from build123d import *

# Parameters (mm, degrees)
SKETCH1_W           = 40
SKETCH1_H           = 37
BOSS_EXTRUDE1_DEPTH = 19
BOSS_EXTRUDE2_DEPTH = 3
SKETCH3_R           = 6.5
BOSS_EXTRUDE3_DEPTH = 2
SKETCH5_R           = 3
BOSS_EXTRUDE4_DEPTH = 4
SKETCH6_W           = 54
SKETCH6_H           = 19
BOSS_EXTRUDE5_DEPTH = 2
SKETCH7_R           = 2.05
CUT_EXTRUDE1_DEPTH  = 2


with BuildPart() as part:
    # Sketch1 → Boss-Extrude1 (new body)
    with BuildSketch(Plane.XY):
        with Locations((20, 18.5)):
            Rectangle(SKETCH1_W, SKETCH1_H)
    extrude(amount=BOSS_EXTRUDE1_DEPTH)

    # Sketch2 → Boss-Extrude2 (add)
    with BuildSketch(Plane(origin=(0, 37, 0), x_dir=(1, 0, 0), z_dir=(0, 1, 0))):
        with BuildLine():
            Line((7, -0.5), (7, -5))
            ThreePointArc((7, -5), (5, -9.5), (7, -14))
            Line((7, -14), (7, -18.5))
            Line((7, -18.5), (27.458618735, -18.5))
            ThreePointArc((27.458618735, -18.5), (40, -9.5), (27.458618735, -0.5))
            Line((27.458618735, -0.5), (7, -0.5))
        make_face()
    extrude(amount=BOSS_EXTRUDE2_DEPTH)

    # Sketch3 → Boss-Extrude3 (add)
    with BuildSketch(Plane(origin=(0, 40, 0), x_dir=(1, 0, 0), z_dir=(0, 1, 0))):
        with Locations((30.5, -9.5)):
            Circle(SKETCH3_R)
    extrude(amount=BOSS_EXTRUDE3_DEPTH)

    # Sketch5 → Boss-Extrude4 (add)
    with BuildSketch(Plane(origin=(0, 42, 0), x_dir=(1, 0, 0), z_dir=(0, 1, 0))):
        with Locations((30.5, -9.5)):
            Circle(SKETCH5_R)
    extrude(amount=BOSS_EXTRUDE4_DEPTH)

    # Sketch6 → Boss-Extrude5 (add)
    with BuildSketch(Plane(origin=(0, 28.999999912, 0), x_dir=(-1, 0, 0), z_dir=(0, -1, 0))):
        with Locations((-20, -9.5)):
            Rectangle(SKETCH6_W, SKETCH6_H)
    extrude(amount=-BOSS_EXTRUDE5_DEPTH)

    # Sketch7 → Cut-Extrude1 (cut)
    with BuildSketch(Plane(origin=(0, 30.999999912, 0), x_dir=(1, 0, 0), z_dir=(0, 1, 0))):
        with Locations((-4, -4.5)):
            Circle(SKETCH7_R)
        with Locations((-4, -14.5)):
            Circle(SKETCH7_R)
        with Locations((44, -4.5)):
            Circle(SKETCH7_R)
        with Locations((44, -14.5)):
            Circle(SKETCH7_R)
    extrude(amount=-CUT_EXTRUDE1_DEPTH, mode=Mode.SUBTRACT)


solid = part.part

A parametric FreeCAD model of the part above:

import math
import FreeCAD as App
import Part
import Sketcher


def add_polygon(sketch, points):
    """Adds a closed chain of lines whose ends are joined by coincident constraints."""
    first, n = sketch.GeometryCount, len(points)
    for a, b in zip(points, points[1:] + points[:1]):
        sketch.addGeometry(Part.LineSegment(App.Vector(*a, 0), App.Vector(*b, 0)), False)
    for i in range(n):
        sketch.addConstraint(Sketcher.Constraint("Coincident", first + i, 2, first + (i + 1) % n, 1))

doc = App.newDocument("Part")
params = doc.addObject("Spreadsheet::Sheet", "Params")
for row, (alias, value) in enumerate([
    ("sketch1_width", "40 mm"),
    ("sketch1_height", "37 mm"),
    ("pad1_length", "19 mm"),
    ("sketch2_radius", "9.5 mm"),
    ("sketch2_height", "4.5 mm"),
    ("pad2_length", "3 mm"),
    ("sketch3_diameter", "13 mm"),
    ("pad3_length", "2 mm"),
    ("sketch4_diameter", "6 mm"),
    ("pad4_length", "4 mm"),
    ("sketch5_width", "54 mm"),
    ("sketch5_height", "19 mm"),
    ("pad5_length", "2 mm"),
    ("sketch6_diameter", "4.1 mm"),
    ("pocket1_length", "2 mm"),
], start=1):
    params.set(f"A{row}", alias)
    params.set(f"B{row}", "=" + value)
    params.setAlias(f"B{row}", alias)

body = doc.addObject("PartDesign::Body", "Body")

sketch1 = body.newObject("Sketcher::SketchObject", "Sketch")
sketch1.AttachmentSupport = (doc.getObject("XY_Plane"), [""])
sketch1.MapMode = "FlatFace"
add_polygon(sketch1, [(0, 37), (0, 0), (40, 0), (40, 37)])
sketch1.addConstraint(Sketcher.Constraint("Vertical", 0))
sketch1.addConstraint(Sketcher.Constraint("Horizontal", 1))
sketch1.addConstraint(Sketcher.Constraint("Vertical", 2))
sketch1.addConstraint(Sketcher.Constraint("Horizontal", 3))
sketch1.addConstraint(Sketcher.Constraint("Coincident", 0, 2, -1, 1))
sketch1.addConstraint(Sketcher.Constraint("DistanceX", 1, 1, 1, 2, 40.0))
sketch1.addConstraint(Sketcher.Constraint("DistanceY", 0, 2, 0, 1, 37.0))
sketch1.setExpression("Constraints[9]", "Params.sketch1_width")
sketch1.setExpression("Constraints[10]", "Params.sketch1_height")
pad1 = body.newObject("PartDesign::Pad", "Pad")
pad1.Profile = sketch1
pad1.setExpression("Length", "Params.pad1_length")

sketch2 = body.newObject("Sketcher::SketchObject", "Sketch001")
sketch2.AttachmentSupport = (doc.getObject("XZ_Plane"), [""])
sketch2.MapMode = "FlatFace"
sketch2.AttachmentOffset = App.Placement(App.Vector(0, 0, -37), App.Rotation())
sketch2.addGeometry(Part.LineSegment(App.Vector(7, 0.5, 0), App.Vector(7, 5, 0)), False)
sketch2.addGeometry(Part.ArcOfCircle(Part.Circle(App.Vector(11.1, 9.5, 0), App.Vector(0, 0, 1), 6.1), math.radians(132), math.radians(228)), False)
sketch2.addGeometry(Part.LineSegment(App.Vector(7, 14, 0), App.Vector(7, 18.5, 0)), False)
sketch2.addGeometry(Part.LineSegment(App.Vector(7, 18.5, 0), App.Vector(27.5, 18.5, 0)), False)
sketch2.addGeometry(Part.ArcOfCircle(Part.Circle(App.Vector(30.5, 9.5, 0), App.Vector(0, 0, 1), 9.5), math.radians(-109), math.radians(109)), False)
sketch2.addGeometry(Part.LineSegment(App.Vector(27.5, 0.5, 0), App.Vector(7, 0.5, 0)), False)
sketch2.addConstraint(Sketcher.Constraint("Coincident", 0, 2, 1, 2))
sketch2.addConstraint(Sketcher.Constraint("Coincident", 1, 1, 2, 1))
sketch2.addConstraint(Sketcher.Constraint("Coincident", 2, 2, 3, 1))
sketch2.addConstraint(Sketcher.Constraint("Coincident", 3, 2, 4, 2))
sketch2.addConstraint(Sketcher.Constraint("Coincident", 4, 1, 5, 1))
sketch2.addConstraint(Sketcher.Constraint("Coincident", 5, 2, 0, 1))
sketch2.addConstraint(Sketcher.Constraint("Vertical", 0))
sketch2.addConstraint(Sketcher.Constraint("Vertical", 2))
sketch2.addConstraint(Sketcher.Constraint("Horizontal", 3))
sketch2.addConstraint(Sketcher.Constraint("Horizontal", 5))
sketch2.addConstraint(Sketcher.Constraint("Horizontal", 1, 3, 4, 3))
sketch2.addConstraint(Sketcher.Constraint("Vertical", 0, 2, 1, 1))
sketch2.addConstraint(Sketcher.Constraint("Vertical", 3, 2, 4, 1))
sketch2.addConstraint(Sketcher.Constraint("Radius", 4, 9.5))
sketch2.addConstraint(Sketcher.Constraint("DistanceY", 0, 1, 0, 2, 4.5))
sketch2.addConstraint(Sketcher.Constraint("DistanceX", -1, 1, 0, 2, 7.0))
sketch2.addConstraint(Sketcher.Constraint("DistanceY", -1, 1, 0, 2, 5.0))
sketch2.addConstraint(Sketcher.Constraint("DistanceY", -1, 1, 1, 1, 14.0))
sketch2.addConstraint(Sketcher.Constraint("DistanceX", -1, 1, 4, 3, 30.5))
sketch2.addConstraint(Sketcher.Constraint("Radius", 1, 6.0625))
sketch2.setExpression("Constraints[13]", "Params.sketch2_radius")
sketch2.setExpression("Constraints[14]", "Params.sketch2_height")
pad2 = body.newObject("PartDesign::Pad", "Pad001")
pad2.Profile = sketch2
pad2.setExpression("Length", "Params.pad2_length")
pad2.Reversed = True

sketch3 = body.newObject("Sketcher::SketchObject", "Sketch002")
sketch3.AttachmentSupport = (doc.getObject("XZ_Plane"), [""])
sketch3.MapMode = "FlatFace"
sketch3.AttachmentOffset = App.Placement(App.Vector(0, 0, -40), App.Rotation())
sketch3.addGeometry(Part.Circle(App.Vector(30, 10, 0), App.Vector(0, 0, 1), 6), False)
sketch3.addConstraint(Sketcher.Constraint("Diameter", 0, 13.0))
sketch3.addConstraint(Sketcher.Constraint("DistanceX", -1, 1, 0, 3, 30.5))
sketch3.addConstraint(Sketcher.Constraint("DistanceY", -1, 1, 0, 3, 9.5))
sketch3.setExpression("Constraints[0]", "Params.sketch3_diameter")
pad3 = body.newObject("PartDesign::Pad", "Pad002")
pad3.Profile = sketch3
pad3.setExpression("Length", "Params.pad3_length")
pad3.Reversed = True

sketch4 = body.newObject("Sketcher::SketchObject", "Sketch003")
sketch4.AttachmentSupport = (doc.getObject("XZ_Plane"), [""])
sketch4.MapMode = "FlatFace"
sketch4.AttachmentOffset = App.Placement(App.Vector(0, 0, -42), App.Rotation())
sketch4.addGeometry(Part.Circle(App.Vector(30.5, 9.5, 0), App.Vector(0, 0, 1), 3), False)
sketch4.addConstraint(Sketcher.Constraint("Diameter", 0, 6.0))
sketch4.addConstraint(Sketcher.Constraint("DistanceX", -1, 1, 0, 3, 30.5))
sketch4.addConstraint(Sketcher.Constraint("DistanceY", -1, 1, 0, 3, 9.5))
sketch4.setExpression("Constraints[0]", "Params.sketch4_diameter")
pad4 = body.newObject("PartDesign::Pad", "Pad003")
pad4.Profile = sketch4
pad4.setExpression("Length", "Params.pad4_length")
pad4.Reversed = True

sketch5 = body.newObject("Sketcher::SketchObject", "Sketch004")
sketch5.AttachmentSupport = (doc.getObject("XZ_Plane"), [""])
sketch5.MapMode = "FlatFace"
sketch5.AttachmentOffset = App.Placement(App.Vector(0, 0, -29), App.Rotation())
add_polygon(sketch5, [(47, 0), (47, 19), (-7, 19), (-7, 0)])
sketch5.addConstraint(Sketcher.Constraint("Vertical", 0))
sketch5.addConstraint(Sketcher.Constraint("Horizontal", 1))
sketch5.addConstraint(Sketcher.Constraint("Vertical", 2))
sketch5.addConstraint(Sketcher.Constraint("Horizontal", 3))
sketch5.addConstraint(Sketcher.Constraint("PointOnObject", 2, 2, -1))
sketch5.addConstraint(Sketcher.Constraint("DistanceX", 1, 2, 1, 1, 54.0))
sketch5.addConstraint(Sketcher.Constraint("DistanceY", 0, 1, 0, 2, 19.0))
sketch5.addConstraint(Sketcher.Constraint("DistanceX", -1, 1, 0, 2, 47.0))
sketch5.setExpression("Constraints[9]", "Params.sketch5_width")
sketch5.setExpression("Constraints[10]", "Params.sketch5_height")
pad5 = body.newObject("PartDesign::Pad", "Pad004")
pad5.Profile = sketch5
pad5.setExpression("Length", "Params.pad5_length")
pad5.Reversed = True

sketch6 = body.newObject("Sketcher::SketchObject", "Sketch005")
sketch6.AttachmentSupport = (doc.getObject("XZ_Plane"), [""])
sketch6.MapMode = "FlatFace"
sketch6.AttachmentOffset = App.Placement(App.Vector(0, 0, -31), App.Rotation())
sketch6.addGeometry(Part.Circle(App.Vector(-4, 4.5, 0), App.Vector(0, 0, 1), 2), False)
sketch6.addGeometry(Part.Circle(App.Vector(-4, 14.5, 0), App.Vector(0, 0, 1), 2), False)
sketch6.addGeometry(Part.Circle(App.Vector(44, 4.5, 0), App.Vector(0, 0, 1), 2), False)
sketch6.addGeometry(Part.Circle(App.Vector(44, 14.5, 0), App.Vector(0, 0, 1), 2), False)
sketch6.addConstraint(Sketcher.Constraint("Equal", 0, 1))
sketch6.addConstraint(Sketcher.Constraint("Equal", 1, 2))
sketch6.addConstraint(Sketcher.Constraint("Equal", 2, 3))
sketch6.addConstraint(Sketcher.Constraint("Horizontal", 0, 3, 2, 3))
sketch6.addConstraint(Sketcher.Constraint("Horizontal", 1, 3, 3, 3))
sketch6.addConstraint(Sketcher.Constraint("Vertical", 0, 3, 1, 3))
sketch6.addConstraint(Sketcher.Constraint("Vertical", 2, 3, 3, 3))
sketch6.addConstraint(Sketcher.Constraint("Diameter", 0, 4.1))
sketch6.addConstraint(Sketcher.Constraint("DistanceX", 0, 3, -1, 1, 4.0))
sketch6.addConstraint(Sketcher.Constraint("DistanceX", -1, 1, 2, 3, 44.0))
sketch6.addConstraint(Sketcher.Constraint("DistanceY", 0, 3, 1, 3, 10.0))
sketch6.addConstraint(Sketcher.Constraint("DistanceY", -1, 1, 0, 3, 4.5))
sketch6.setExpression("Constraints[7]", "Params.sketch6_diameter")
pocket1 = body.newObject("PartDesign::Pocket", "Pocket")
pocket1.Profile = sketch6
pocket1.setExpression("Length", "Params.pocket1_length")
pocket1.Reversed = True

doc.recompute()
